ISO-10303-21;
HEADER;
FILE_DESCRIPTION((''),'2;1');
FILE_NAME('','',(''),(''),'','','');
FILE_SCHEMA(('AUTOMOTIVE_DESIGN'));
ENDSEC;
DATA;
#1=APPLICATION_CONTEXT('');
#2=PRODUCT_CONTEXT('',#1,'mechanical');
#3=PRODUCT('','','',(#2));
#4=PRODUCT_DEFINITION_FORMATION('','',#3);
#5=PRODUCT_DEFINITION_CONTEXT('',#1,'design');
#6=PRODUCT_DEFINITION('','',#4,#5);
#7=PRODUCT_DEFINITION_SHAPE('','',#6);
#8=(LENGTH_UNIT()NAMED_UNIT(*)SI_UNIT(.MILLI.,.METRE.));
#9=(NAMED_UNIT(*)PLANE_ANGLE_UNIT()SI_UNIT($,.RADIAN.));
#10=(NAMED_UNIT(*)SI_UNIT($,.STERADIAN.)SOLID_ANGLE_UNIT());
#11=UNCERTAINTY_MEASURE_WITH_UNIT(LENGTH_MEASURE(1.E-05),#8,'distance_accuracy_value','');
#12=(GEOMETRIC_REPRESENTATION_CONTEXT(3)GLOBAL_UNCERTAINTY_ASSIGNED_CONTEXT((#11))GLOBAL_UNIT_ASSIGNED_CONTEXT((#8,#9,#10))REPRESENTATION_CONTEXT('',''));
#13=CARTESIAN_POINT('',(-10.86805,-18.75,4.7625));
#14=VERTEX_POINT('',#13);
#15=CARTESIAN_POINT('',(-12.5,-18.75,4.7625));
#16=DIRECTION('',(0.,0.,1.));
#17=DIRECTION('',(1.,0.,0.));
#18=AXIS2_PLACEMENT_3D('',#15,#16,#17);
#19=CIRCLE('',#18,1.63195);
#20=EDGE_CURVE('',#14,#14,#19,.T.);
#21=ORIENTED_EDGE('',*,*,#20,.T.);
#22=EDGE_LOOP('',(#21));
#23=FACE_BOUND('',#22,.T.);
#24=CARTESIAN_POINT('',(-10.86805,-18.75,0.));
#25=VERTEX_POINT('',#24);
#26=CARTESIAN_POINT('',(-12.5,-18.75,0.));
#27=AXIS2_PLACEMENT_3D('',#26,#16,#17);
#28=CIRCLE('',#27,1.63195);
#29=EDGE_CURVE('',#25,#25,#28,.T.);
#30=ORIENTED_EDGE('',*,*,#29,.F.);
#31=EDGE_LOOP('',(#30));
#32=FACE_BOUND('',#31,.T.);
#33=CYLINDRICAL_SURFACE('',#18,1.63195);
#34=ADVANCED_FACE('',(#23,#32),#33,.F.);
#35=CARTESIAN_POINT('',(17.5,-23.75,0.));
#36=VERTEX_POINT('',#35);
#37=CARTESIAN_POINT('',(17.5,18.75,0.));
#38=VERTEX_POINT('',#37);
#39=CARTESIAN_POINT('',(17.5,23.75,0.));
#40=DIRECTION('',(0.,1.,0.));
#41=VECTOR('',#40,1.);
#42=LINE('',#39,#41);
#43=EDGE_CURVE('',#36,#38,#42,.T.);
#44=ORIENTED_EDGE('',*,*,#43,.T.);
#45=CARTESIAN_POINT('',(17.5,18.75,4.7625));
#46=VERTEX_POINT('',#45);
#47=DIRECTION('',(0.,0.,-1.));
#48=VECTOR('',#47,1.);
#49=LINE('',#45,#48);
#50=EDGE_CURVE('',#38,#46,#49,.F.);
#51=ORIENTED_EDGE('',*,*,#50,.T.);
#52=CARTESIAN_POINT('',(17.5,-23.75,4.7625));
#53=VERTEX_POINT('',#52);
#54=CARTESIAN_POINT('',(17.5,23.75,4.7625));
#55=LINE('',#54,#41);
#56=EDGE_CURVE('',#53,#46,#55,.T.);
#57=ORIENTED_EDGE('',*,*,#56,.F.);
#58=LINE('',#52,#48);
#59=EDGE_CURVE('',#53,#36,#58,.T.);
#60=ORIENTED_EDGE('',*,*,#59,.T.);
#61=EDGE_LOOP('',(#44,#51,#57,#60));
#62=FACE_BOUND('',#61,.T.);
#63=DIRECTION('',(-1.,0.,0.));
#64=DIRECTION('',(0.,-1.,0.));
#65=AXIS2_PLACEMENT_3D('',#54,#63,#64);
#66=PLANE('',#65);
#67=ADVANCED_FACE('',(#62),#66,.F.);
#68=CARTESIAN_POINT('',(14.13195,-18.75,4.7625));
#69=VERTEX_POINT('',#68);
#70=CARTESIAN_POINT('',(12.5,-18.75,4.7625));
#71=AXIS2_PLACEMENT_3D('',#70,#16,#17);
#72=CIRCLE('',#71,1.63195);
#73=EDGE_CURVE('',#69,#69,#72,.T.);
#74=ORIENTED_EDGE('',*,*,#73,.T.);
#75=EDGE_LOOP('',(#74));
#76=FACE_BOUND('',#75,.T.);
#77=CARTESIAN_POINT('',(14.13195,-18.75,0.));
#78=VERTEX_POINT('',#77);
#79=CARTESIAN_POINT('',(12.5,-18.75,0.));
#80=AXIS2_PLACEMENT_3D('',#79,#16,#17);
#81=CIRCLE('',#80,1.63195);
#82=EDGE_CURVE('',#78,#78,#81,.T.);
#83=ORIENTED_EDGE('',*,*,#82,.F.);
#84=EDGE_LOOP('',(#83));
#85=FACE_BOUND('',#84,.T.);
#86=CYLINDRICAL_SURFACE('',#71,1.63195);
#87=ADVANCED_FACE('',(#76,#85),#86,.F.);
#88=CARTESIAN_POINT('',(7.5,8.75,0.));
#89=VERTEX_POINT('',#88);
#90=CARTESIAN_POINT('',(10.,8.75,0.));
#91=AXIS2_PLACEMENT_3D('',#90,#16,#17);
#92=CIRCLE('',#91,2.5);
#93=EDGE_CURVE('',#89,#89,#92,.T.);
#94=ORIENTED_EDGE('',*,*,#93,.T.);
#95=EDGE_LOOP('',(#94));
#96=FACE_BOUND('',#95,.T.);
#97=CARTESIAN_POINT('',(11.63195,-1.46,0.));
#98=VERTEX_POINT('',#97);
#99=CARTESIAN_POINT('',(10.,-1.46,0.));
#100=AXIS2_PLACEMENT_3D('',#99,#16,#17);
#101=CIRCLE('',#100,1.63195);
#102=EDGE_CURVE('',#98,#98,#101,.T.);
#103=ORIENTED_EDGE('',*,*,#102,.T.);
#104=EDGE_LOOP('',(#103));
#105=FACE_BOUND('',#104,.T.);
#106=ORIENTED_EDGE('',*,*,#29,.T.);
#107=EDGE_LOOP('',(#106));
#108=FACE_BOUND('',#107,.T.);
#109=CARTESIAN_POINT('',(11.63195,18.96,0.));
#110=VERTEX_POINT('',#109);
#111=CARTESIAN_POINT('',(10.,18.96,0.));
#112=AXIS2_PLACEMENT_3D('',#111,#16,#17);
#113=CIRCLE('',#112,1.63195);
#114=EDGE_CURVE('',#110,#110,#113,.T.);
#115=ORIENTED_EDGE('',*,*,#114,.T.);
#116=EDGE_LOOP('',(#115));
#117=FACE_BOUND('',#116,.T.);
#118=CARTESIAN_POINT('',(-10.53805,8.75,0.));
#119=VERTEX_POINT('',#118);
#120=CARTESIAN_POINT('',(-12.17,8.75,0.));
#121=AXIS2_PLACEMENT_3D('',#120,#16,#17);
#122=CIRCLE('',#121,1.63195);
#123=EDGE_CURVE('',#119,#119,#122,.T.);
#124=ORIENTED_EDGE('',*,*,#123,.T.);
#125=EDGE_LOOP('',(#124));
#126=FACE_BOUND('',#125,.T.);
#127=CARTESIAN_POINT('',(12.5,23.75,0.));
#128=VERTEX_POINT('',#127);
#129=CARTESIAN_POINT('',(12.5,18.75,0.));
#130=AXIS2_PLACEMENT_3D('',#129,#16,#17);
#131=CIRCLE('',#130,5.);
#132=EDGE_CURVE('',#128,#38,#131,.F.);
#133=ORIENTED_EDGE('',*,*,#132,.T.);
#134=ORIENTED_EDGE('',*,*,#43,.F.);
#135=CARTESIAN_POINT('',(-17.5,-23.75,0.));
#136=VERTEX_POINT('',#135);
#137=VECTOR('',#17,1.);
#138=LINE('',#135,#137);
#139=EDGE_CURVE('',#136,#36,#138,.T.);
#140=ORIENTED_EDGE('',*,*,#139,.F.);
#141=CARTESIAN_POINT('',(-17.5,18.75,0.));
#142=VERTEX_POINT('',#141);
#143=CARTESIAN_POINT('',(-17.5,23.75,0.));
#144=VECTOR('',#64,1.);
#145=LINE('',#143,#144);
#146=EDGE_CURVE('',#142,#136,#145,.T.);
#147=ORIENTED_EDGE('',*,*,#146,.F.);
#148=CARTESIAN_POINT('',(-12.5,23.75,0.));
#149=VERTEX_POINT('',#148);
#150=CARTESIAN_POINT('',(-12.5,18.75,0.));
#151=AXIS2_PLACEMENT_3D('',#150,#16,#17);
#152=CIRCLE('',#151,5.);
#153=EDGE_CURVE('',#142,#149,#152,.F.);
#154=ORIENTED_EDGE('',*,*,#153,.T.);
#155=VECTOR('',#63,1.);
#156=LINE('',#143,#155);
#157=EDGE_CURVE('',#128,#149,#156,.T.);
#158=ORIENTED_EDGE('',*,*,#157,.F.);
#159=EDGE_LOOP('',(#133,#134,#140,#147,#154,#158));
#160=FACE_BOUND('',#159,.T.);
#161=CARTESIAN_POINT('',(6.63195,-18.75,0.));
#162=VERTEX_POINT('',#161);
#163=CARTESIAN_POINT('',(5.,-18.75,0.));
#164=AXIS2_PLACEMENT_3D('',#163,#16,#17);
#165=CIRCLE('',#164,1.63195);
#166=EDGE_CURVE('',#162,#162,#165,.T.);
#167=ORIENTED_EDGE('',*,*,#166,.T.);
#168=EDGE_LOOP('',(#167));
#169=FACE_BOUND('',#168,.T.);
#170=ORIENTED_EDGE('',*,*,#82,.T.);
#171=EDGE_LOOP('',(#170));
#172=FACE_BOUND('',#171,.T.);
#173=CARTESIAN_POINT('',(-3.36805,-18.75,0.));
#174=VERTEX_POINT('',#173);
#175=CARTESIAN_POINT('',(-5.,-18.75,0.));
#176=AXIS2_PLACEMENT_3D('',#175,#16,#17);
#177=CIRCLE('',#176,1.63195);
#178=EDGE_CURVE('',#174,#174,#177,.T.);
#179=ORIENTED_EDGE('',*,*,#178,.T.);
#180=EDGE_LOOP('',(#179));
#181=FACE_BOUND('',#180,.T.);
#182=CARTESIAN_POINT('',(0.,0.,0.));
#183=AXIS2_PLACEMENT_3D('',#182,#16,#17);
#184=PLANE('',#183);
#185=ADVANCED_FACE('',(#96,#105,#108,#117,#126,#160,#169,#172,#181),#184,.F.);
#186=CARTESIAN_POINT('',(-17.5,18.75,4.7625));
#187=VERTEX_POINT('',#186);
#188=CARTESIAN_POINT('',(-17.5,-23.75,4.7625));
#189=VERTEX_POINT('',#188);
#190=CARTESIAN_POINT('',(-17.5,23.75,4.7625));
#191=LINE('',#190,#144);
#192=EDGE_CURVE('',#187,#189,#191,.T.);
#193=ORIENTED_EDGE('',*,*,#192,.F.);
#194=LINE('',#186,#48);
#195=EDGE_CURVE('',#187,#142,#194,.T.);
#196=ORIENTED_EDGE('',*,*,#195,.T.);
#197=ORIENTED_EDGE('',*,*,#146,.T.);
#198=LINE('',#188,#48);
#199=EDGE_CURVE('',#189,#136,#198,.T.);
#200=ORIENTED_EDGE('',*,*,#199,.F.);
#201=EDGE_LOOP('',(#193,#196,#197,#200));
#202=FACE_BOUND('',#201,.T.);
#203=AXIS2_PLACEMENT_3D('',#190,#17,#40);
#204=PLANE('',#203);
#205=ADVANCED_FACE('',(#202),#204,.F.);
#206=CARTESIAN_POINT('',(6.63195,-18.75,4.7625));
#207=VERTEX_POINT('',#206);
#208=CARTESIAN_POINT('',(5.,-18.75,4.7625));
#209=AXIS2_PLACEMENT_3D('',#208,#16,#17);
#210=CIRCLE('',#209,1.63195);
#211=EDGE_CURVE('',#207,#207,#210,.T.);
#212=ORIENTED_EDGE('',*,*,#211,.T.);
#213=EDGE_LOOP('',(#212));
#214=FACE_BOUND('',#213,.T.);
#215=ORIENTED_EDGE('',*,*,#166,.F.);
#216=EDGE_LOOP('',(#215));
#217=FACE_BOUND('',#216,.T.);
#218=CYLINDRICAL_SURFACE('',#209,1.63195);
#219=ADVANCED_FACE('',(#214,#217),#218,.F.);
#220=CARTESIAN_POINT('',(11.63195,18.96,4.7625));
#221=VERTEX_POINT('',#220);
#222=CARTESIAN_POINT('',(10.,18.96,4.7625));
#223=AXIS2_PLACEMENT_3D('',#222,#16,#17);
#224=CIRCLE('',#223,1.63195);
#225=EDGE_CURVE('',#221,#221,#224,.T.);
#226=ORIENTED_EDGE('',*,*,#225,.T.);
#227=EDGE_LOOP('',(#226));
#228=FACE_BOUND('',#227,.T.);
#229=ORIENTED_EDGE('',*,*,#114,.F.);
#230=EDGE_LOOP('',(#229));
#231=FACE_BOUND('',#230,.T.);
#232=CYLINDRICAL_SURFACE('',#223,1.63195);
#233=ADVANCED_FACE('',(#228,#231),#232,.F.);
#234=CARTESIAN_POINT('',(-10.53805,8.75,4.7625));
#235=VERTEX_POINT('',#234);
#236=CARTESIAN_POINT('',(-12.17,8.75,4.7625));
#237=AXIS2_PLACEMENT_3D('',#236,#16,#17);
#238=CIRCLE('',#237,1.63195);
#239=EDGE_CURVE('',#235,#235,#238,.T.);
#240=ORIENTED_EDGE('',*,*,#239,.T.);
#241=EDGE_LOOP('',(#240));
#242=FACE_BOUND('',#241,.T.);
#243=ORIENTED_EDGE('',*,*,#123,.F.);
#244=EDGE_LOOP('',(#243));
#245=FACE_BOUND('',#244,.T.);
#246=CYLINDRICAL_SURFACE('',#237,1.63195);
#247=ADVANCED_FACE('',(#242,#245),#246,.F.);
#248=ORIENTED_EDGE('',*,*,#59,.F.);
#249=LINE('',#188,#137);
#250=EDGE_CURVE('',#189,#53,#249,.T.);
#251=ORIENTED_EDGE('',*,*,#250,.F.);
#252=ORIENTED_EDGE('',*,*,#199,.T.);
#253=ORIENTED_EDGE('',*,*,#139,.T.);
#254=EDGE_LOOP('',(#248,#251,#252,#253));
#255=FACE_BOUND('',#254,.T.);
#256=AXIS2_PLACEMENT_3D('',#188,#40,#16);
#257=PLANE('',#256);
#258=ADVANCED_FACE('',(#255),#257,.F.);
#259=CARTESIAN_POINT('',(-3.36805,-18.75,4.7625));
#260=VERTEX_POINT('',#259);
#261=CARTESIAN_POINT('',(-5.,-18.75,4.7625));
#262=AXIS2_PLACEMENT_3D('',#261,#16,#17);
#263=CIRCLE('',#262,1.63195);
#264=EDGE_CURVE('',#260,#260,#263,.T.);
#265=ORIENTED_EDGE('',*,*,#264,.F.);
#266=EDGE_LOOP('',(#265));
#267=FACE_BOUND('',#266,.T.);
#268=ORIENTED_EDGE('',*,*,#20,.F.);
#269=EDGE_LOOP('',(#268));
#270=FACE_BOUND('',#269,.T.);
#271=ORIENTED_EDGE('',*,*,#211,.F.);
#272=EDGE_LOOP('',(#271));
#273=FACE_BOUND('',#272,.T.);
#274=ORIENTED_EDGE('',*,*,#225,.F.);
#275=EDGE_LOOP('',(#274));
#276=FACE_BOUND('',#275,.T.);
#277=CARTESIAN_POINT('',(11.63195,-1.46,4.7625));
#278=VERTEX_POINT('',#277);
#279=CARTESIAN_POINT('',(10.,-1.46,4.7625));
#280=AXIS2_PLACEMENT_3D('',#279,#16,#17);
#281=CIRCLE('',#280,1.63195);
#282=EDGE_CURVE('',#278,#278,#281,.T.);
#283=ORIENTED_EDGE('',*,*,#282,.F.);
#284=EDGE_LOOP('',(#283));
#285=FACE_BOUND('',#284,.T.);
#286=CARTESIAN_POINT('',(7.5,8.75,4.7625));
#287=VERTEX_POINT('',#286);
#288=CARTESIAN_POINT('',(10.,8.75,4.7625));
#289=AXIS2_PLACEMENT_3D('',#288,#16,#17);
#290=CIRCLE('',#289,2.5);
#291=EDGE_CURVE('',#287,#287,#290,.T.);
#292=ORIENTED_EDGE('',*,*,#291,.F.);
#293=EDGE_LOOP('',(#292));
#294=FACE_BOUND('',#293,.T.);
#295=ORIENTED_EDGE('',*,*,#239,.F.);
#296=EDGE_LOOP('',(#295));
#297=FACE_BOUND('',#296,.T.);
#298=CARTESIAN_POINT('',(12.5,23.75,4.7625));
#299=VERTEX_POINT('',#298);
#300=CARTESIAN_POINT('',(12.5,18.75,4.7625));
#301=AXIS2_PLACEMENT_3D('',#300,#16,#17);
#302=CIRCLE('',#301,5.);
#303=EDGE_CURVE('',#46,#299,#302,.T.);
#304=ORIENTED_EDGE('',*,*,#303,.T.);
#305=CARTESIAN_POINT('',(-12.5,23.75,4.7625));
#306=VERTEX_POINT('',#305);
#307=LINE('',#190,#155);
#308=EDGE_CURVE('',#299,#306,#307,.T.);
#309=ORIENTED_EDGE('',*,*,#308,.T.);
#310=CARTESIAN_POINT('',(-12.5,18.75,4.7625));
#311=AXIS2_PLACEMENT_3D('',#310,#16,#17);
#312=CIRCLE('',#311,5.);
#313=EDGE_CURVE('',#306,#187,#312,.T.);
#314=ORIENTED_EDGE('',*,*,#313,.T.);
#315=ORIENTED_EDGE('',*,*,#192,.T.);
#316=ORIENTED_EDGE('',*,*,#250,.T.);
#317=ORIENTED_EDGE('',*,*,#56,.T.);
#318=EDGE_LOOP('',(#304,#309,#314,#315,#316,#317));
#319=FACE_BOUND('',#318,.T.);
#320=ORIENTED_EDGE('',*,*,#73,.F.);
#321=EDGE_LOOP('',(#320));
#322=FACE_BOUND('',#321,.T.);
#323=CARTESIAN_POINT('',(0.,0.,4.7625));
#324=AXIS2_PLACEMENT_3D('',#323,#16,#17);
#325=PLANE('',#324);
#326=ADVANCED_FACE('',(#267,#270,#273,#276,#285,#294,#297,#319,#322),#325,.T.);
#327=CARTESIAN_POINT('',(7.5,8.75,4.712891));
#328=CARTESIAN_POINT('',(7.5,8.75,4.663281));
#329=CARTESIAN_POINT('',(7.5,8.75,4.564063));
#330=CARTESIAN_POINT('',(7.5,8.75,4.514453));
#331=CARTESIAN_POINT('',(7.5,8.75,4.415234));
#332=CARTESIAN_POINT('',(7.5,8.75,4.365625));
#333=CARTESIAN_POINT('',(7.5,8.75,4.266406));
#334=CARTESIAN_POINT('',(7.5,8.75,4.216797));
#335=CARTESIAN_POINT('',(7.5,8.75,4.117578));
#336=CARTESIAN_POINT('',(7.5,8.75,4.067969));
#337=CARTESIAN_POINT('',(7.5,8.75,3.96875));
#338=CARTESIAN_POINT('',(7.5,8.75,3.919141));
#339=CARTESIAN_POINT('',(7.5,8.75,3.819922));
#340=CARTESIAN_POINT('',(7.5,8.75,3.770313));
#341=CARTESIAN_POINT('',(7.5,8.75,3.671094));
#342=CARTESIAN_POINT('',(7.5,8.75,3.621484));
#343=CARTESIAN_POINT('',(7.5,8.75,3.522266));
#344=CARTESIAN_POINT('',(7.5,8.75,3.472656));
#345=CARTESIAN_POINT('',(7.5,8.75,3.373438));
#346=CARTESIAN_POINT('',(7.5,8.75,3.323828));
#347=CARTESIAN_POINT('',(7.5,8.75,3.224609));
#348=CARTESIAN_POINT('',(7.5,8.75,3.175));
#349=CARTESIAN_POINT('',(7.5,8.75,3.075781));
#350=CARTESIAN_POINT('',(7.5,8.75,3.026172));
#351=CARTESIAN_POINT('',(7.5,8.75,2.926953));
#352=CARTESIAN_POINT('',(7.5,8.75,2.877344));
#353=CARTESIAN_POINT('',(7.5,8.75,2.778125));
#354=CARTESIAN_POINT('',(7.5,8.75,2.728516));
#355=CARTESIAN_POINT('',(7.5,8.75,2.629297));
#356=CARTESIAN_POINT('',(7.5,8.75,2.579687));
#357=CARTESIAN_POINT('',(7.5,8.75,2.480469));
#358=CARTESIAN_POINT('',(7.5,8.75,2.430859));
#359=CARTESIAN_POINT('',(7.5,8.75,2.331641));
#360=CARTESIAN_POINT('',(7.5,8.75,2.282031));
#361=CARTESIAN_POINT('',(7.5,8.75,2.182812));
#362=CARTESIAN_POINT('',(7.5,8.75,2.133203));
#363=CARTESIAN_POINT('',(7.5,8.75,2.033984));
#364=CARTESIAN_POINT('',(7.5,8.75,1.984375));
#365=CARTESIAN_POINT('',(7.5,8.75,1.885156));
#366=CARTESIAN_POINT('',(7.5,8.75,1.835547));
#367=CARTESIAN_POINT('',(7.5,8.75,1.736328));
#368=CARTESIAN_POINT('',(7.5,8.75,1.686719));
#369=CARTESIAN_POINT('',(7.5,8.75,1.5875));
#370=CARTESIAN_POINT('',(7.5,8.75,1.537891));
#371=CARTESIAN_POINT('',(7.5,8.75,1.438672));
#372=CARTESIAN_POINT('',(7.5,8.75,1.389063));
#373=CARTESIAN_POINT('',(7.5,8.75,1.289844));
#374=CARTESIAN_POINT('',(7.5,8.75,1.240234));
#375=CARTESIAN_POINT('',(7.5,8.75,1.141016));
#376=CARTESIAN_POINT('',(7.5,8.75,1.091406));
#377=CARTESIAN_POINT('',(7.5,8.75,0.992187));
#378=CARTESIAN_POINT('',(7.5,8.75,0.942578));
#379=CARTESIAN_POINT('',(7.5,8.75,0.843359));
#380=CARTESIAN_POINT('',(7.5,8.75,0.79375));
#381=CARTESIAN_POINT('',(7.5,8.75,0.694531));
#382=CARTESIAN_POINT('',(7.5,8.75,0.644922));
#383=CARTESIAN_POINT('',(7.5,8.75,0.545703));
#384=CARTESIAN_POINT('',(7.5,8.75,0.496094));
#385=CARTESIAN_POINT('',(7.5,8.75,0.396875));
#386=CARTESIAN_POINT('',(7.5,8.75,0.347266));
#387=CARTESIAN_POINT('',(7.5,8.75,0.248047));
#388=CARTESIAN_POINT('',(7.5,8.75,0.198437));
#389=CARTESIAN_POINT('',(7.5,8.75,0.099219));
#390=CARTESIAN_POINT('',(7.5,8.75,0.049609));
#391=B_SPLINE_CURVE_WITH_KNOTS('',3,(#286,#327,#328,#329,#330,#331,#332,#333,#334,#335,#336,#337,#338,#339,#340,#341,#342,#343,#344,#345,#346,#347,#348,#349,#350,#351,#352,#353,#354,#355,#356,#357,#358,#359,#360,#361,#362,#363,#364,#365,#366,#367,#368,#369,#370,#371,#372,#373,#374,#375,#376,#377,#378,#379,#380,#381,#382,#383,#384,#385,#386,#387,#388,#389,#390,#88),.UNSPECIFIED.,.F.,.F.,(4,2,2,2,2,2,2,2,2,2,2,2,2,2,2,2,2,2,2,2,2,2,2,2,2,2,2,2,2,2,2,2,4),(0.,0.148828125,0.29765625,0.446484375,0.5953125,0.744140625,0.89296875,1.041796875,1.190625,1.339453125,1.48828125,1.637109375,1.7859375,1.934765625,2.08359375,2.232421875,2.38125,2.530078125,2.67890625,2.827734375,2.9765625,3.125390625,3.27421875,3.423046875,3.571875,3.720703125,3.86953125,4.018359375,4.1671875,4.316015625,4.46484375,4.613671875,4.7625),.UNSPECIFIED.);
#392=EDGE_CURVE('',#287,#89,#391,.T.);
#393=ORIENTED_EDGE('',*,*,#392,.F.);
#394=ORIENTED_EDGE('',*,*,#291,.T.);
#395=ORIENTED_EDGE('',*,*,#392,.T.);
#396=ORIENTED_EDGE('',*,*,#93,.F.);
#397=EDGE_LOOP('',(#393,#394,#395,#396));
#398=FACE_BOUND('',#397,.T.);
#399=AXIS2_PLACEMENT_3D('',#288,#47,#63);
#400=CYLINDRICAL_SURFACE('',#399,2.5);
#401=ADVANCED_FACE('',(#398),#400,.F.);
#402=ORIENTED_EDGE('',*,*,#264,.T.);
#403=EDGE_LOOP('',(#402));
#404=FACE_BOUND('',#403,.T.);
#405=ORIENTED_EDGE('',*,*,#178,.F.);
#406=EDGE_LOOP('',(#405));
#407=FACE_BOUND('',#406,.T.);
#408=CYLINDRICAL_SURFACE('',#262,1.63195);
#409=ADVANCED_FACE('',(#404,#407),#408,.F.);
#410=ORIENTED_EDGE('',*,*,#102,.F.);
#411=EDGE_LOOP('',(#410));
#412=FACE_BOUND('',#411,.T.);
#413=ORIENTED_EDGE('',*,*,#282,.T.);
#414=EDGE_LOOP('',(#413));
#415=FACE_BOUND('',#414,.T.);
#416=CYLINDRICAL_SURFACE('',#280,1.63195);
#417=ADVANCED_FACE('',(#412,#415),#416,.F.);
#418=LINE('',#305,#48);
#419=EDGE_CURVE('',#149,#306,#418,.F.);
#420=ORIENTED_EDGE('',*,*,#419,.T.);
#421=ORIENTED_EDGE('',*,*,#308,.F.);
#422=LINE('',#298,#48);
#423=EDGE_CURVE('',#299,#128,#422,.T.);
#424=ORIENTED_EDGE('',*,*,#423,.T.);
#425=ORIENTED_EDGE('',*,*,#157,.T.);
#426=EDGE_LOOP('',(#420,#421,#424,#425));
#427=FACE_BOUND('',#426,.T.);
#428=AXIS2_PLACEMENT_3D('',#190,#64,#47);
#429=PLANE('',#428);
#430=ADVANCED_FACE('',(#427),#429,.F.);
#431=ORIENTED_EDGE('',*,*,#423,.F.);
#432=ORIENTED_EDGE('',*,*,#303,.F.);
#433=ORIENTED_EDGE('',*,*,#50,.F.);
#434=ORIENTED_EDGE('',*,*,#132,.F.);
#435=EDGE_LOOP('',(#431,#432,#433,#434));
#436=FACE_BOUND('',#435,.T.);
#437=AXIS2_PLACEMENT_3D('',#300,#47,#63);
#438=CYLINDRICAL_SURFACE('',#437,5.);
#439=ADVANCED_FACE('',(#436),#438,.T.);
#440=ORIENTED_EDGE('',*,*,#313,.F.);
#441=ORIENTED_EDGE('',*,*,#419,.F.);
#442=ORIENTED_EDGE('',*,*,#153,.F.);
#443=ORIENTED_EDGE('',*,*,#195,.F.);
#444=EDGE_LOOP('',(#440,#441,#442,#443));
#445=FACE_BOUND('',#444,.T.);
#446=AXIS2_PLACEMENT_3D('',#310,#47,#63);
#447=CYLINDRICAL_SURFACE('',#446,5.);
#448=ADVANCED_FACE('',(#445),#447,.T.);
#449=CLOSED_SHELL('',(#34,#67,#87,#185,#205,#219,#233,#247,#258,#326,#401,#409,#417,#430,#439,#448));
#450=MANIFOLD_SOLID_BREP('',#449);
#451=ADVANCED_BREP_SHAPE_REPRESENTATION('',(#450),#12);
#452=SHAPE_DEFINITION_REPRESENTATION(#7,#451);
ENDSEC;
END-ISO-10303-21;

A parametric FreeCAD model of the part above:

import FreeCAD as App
import Part
import Sketcher


def edges_at(feature, points):
    """Names of the edges that pass closest to the given points."""
    edges = feature.Shape.Edges
    near = lambda p: min(range(len(edges)), key=lambda i: edges[i].distToShape(Part.Vertex(*p))[0])
    return sorted({f"Edge{near(p) + 1}" for p in points})

doc = App.newDocument("Part")
body = doc.addObject("PartDesign::Body", "Body")

sketch1 = body.newObject("Sketcher::SketchObject", "Sketch")
sketch1.AttachmentSupport = (doc.getObject("XY_Plane"), [""])
sketch1.MapMode = "FlatFace"
sketch1.addGeometry([
    Part.LineSegment(App.Vector(-17.5, 23.8, 0), App.Vector(-17.5, -23.8, 0)),
    Part.LineSegment(App.Vector(-17.5, -23.8, 0), App.Vector(17.5, -23.8, 0)),
    Part.LineSegment(App.Vector(17.5, -23.8, 0), App.Vector(17.5, 23.8, 0)),
    Part.LineSegment(App.Vector(17.5, 23.8, 0), App.Vector(-17.5, 23.8, 0)),
    Part.Circle(App.Vector(10, 8.8, 0), App.Vector(0, 0, 1), 2.5),
], False)
sketch1.addConstraint([
    Sketcher.Constraint("Coincident", 0, 2, 1, 1),
    Sketcher.Constraint("Coincident", 1, 2, 2, 1),
    Sketcher.Constraint("Coincident", 2, 2, 3, 1),
    Sketcher.Constraint("Coincident", 3, 2, 0, 1),
    Sketcher.Constraint("Vertical", 0),
    Sketcher.Constraint("Horizontal", 1),
    Sketcher.Constraint("Vertical", 2),
    Sketcher.Constraint("Horizontal", 3),
    Sketcher.Constraint("Symmetric", 0, 2, 2, 2, -1, 1),
    Sketcher.Constraint("Diameter", 4, 5.0),
    Sketcher.Constraint("DistanceX", 1, 1, 1, 2, 35.0),
    Sketcher.Constraint("DistanceY", 0, 2, 0, 1, 47.5),
    Sketcher.Constraint("DistanceX", -1, 1, 4, 3, 10.0),
    Sketcher.Constraint("DistanceY", 4, 3, 2, 2, 15.0),
])
pad1 = body.newObject("PartDesign::Pad", "Pad")
pad1.Profile = sketch1
pad1.Length = 4.7625

sketch2 = body.newObject("Sketcher::SketchObject", "Sketch001")
sketch2.AttachmentSupport = (doc.getObject("XY_Plane"), [""])
sketch2.MapMode = "FlatFace"
sketch2.AttachmentOffset = App.Placement(App.Vector(0, 0, 4.7625), App.Rotation())
sketch2.addGeometry([
    Part.Circle(App.Vector(10, 19, 0), App.Vector(0, 0, 1), 1.6),
    Part.Circle(App.Vector(10, -1.5, 0), App.Vector(0, 0, 1), 1.6),
    Part.Circle(App.Vector(-12.2, 8.8, 0), App.Vector(0, 0, 1), 1.6),
], False)
sketch2.addConstraint([
    Sketcher.Constraint("Equal", 0, 1),
    Sketcher.Constraint("Equal", 1, 2),
    Sketcher.Constraint("Vertical", 0, 3, 1, 3),
    Sketcher.Constraint("DistanceX", -1, 1, 0, 3, 10.0),
    Sketcher.Constraint("Diameter", 0, 3.2639),
    Sketcher.Constraint("DistanceY", -1, 1, 0, 3, 18.96),
    Sketcher.Constraint("DistanceY", 1, 3, -1, 1, 1.46),
    Sketcher.Constraint("DistanceX", 2, 3, -1, 1, 12.17),
    Sketcher.Constraint("DistanceY", -1, 1, 2, 3, 8.75),
])
doc.recompute()
hole = body.newObject("PartDesign::Hole", "Hole")
hole.Profile = sketch2
hole.ThreadType = "None"
hole.Diameter = 3.2639
hole.DepthType = "ThroughAll"
doc.recompute()

fillet = body.newObject("PartDesign::Fillet", "Fillet")
fillet.Base = (hole, edges_at(hole, [(-17.5, 23.75, 2.381), (17.5, 23.75, 2.381)]))
fillet.Radius = 5

sketch3 = body.newObject("Sketcher::SketchObject", "Sketch002")
sketch3.AttachmentSupport = (doc.getObject("XY_Plane"), [""])
sketch3.MapMode = "FlatFace"
sketch3.AttachmentOffset = App.Placement(App.Vector(0, 0, 4.7625), App.Rotation())
sketch3.addGeometry([
    Part.Circle(App.Vector(-12.5, -18.8, 0), App.Vector(0, 0, 1), 1.6),
    Part.Circle(App.Vector(12.5, -18.8, 0), App.Vector(0, 0, 1), 1.6),
    Part.Circle(App.Vector(-5, -18.8, 0), App.Vector(0, 0, 1), 1.6),
    Part.Circle(App.Vector(5, -18.8, 0), App.Vector(0, 0, 1), 1.6),
], False)
sketch3.addConstraint([
    Sketcher.Constraint("Equal", 0, 1),
    Sketcher.Constraint("Equal", 1, 2),
    Sketcher.Constraint("Equal", 2, 3),
    Sketcher.Constraint("Symmetric", 0, 3, 1, 3, -2),
    Sketcher.Constraint("Symmetric", 2, 3, 3, 3, -2),
    Sketcher.Constraint("Horizontal", 1, 3, 2, 3),
    Sketcher.Constraint("DistanceX", 2, 3, -1, 1, 5.0),
    Sketcher.Constraint("DistanceX", 0, 3, 1, 3, 25.0),
    Sketcher.Constraint("Diameter", 0, 3.2639),
    Sketcher.Constraint("DistanceY", 0, 3, -1, 1, 18.75),
])
doc.recompute()
hole2 = body.newObject("PartDesign::Hole", "Hole001")
hole2.Profile = sketch3
hole2.ThreadType = "None"
hole2.Diameter = 3.2639
hole2.DepthType = "ThroughAll"

doc.recompute()
